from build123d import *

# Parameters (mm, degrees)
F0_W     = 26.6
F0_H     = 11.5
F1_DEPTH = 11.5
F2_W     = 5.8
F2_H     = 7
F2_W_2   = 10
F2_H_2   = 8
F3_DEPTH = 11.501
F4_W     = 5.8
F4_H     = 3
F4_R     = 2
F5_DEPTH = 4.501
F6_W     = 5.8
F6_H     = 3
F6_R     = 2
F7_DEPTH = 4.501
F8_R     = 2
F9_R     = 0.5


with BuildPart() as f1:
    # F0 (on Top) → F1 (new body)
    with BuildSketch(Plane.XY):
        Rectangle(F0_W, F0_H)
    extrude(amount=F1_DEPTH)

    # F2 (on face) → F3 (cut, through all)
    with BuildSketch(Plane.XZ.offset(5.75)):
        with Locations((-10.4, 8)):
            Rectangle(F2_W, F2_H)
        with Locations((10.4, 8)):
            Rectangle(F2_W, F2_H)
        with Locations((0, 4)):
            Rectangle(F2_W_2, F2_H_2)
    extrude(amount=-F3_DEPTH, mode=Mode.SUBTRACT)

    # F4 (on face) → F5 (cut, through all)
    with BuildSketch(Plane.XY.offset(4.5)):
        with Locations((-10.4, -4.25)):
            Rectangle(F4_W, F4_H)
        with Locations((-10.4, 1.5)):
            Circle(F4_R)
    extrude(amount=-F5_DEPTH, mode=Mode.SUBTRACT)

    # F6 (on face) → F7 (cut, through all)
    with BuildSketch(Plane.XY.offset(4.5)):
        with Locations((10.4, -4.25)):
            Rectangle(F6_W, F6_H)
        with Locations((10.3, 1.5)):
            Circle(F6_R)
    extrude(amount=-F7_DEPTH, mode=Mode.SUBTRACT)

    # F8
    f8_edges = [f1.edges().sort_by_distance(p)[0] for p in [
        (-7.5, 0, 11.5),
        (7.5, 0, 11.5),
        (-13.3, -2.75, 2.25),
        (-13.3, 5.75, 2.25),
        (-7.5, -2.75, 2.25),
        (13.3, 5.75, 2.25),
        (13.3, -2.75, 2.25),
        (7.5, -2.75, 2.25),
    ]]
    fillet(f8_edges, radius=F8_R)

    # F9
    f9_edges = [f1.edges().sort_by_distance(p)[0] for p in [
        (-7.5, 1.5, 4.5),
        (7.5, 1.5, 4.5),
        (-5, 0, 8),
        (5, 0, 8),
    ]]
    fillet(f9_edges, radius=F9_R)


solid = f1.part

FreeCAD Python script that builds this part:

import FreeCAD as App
import Part
import Sketcher
from FreeCAD import Vector
Q = App.Units.Quantity


def edges_at(feature, points):
    """Names of the edges that pass closest to the given points."""
    edges = feature.Shape.Edges
    near = lambda p: min(range(len(edges)), key=lambda i: edges[i].distToShape(Part.Vertex(*p))[0])
    return sorted({f"Edge{near(p) + 1}" for p in points})

doc = App.newDocument("Part")
body = doc.addObject("PartDesign::Body", "Body")

sketch1 = body.newObject("Sketcher::SketchObject", "Sketch")
sketch1.AttachmentSupport = (doc.getObject("XY_Plane"), [""])
sketch1.MapMode = "FlatFace"
sketch1.addGeometry([
    Part.LineSegment(Vector(-13, 6, 0), Vector(-13, -6, 0)),
    Part.LineSegment(Vector(-13, -6, 0), Vector(13, -6, 0)),
    Part.LineSegment(Vector(13, -6, 0), Vector(13, 6, 0)),
    Part.LineSegment(Vector(13, 6, 0), Vector(-13, 6, 0)),
], False)
sketch1.addConstraint([
    Sketcher.Constraint("Coincident", 0, 2, 1, 1),
    Sketcher.Constraint("Coincident", 1, 2, 2, 1),
    Sketcher.Constraint("Coincident", 2, 2, 3, 1),
    Sketcher.Constraint("Coincident", 3, 2, 0, 1),
    Sketcher.Constraint("Vertical", 0),
    Sketcher.Constraint("Horizontal", 1),
    Sketcher.Constraint("Vertical", 2),
    Sketcher.Constraint("Horizontal", 3),
    Sketcher.Constraint("Symmetric", 0, 2, 2, 2, -1, 1),
    Sketcher.Constraint("DistanceX", 1, 1, 1, 2, Q("26.6 mm")),
    Sketcher.Constraint("DistanceY", 0, 2, 0, 1, Q("11.5 mm")),
])
pad1 = body.newObject("PartDesign::Pad", "Pad")
pad1.Profile = sketch1
pad1.Length = 11.5

sketch2 = body.newObject("Sketcher::SketchObject", "Sketch001")
sketch2.AttachmentSupport = (doc.getObject("XZ_Plane"), [""])
sketch2.MapMode = "FlatFace"
sketch2.AttachmentOffset = App.Placement(Vector(0, 0, 5.75), App.Rotation())
sketch2.addGeometry([
    Part.LineSegment(Vector(-13, 12, 0), Vector(-13, 4, 0)),
    Part.LineSegment(Vector(-13, 4, 0), Vector(-8, 4, 0)),
    Part.LineSegment(Vector(-8, 4, 0), Vector(-8, 12, 0)),
    Part.LineSegment(Vector(-8, 12, 0), Vector(-13, 12, 0)),
    Part.LineSegment(Vector(8, 12, 0), Vector(8, 4, 0)),
    Part.LineSegment(Vector(8, 4, 0), Vector(13, 4, 0)),
    Part.LineSegment(Vector(13, 4, 0), Vector(13, 12, 0)),
    Part.LineSegment(Vector(13, 12, 0), Vector(8, 12, 0)),
    Part.LineSegment(Vector(-5, 8, 0), Vector(-5, 0, 0)),
    Part.LineSegment(Vector(-5, 0, 0), Vector(5, 0, 0)),
    Part.LineSegment(Vector(5, 0, 0), Vector(5, 8, 0)),
    Part.LineSegment(Vector(5, 8, 0), Vector(-5, 8, 0)),
], False)
sketch2.addConstraint([
    Sketcher.Constraint("Coincident", 0, 2, 1, 1),
    Sketcher.Constraint("Coincident", 1, 2, 2, 1),
    Sketcher.Constraint("Coincident", 2, 2, 3, 1),
    Sketcher.Constraint("Coincident", 3, 2, 0, 1),
    Sketcher.Constraint("Coincident", 4, 2, 5, 1),
    Sketcher.Constraint("Coincident", 5, 2, 6, 1),
    Sketcher.Constraint("Coincident", 6, 2, 7, 1),
    Sketcher.Constraint("Coincident", 7, 2, 4, 1),
    Sketcher.Constraint("Coincident", 8, 2, 9, 1),
    Sketcher.Constraint("Coincident", 9, 2, 10, 1),
    Sketcher.Constraint("Coincident", 10, 2, 11, 1),
    Sketcher.Constraint("Coincident", 11, 2, 8, 1),
    Sketcher.Constraint("Vertical", 0),
    Sketcher.Constraint("Horizontal", 1),
    Sketcher.Constraint("Vertical", 2),
    Sketcher.Constraint("Horizontal", 3),
    Sketcher.Constraint("Vertical", 4),
    Sketcher.Constraint("Horizontal", 5),
    Sketcher.Constraint("Vertical", 6),
    Sketcher.Constraint("Horizontal", 7),
    Sketcher.Constraint("Vertical", 8),
    Sketcher.Constraint("Horizontal", 9),
    Sketcher.Constraint("Vertical", 10),
    Sketcher.Constraint("Horizontal", 11),
    Sketcher.Constraint("Symmetric", 8, 2, 9, 2, -1, 1),
    Sketcher.Constraint("Symmetric", 1, 2, 4, 2, -2),
    Sketcher.Constraint("Symmetric", 3, 2, 6, 2, -2),
    Sketcher.Constraint("DistanceX", 9, 1, 9, 2, Q("10 mm")),
    Sketcher.Constraint("DistanceY", 0, 2, 0, 1, Q("7 mm")),
    Sketcher.Constraint("DistanceY", 8, 2, 8, 1, Q("8 mm")),
    Sketcher.Constraint("DistanceX", 1, 1, 1, 2, Q("5.8 mm")),
    Sketcher.Constraint("DistanceX", 1, 2, 4, 2, Q("15 mm")),
    Sketcher.Constraint("DistanceY", -1, 1, 0, 2, Q("4.5 mm")),
])
pocket1 = body.newObject("PartDesign::Pocket", "Pocket")
pocket1.Profile = sketch2
pocket1.Type = "ThroughAll"

sketch3 = body.newObject("Sketcher::SketchObject", "Sketch002")
sketch3.AttachmentSupport = (doc.getObject("XY_Plane"), [""])
sketch3.MapMode = "FlatFace"
sketch3.AttachmentOffset = App.Placement(Vector(0, 0, 4.5), App.Rotation())
sketch3.addGeometry([
    Part.LineSegment(Vector(-13.3, -2.8, 0), Vector(-13.3, -5.8, 0)),
    Part.LineSegment(Vector(-13.3, -5.8, 0), Vector(-7.5, -5.8, 0)),
    Part.LineSegment(Vector(-7.5, -5.8, 0), Vector(-7.5, -2.8, 0)),
    Part.LineSegment(Vector(-7.5, -2.8, 0), Vector(-13.3, -2.8, 0)),
    Part.Circle(Vector(-10.4, 1.5, 0), Vector(0, 0, 1), 2),
], False)
sketch3.addConstraint([
    Sketcher.Constraint("Coincident", 0, 2, 1, 1),
    Sketcher.Constraint("Coincident", 1, 2, 2, 1),
    Sketcher.Constraint("Coincident", 2, 2, 3, 1),
    Sketcher.Constraint("Coincident", 3, 2, 0, 1),
    Sketcher.Constraint("Vertical", 0),
    Sketcher.Constraint("Horizontal", 1),
    Sketcher.Constraint("Vertical", 2),
    Sketcher.Constraint("Horizontal", 3),
    Sketcher.Constraint("Diameter", 4, Q("4 mm")),
    Sketcher.Constraint("DistanceY", 0, 2, 0, 1, Q("3 mm")),
    Sketcher.Constraint("DistanceX", 1, 1, 1, 2, Q("5.8 mm")),
    Sketcher.Constraint("DistanceX", 4, 3, -1, 1, Q("10.4 mm")),
    Sketcher.Constraint("DistanceY", -1, 1, 4, 3, Q("1.5 mm")),
    Sketcher.Constraint("DistanceX", 0, 2, -1, 1, Q("13.3 mm")),
    Sketcher.Constraint("DistanceY", 0, 2, -1, 1, Q("5.75 mm")),
])
pocket2 = body.newObject("PartDesign::Pocket", "Pocket001")
pocket2.Profile = sketch3
pocket2.Type = "ThroughAll"

sketch4 = body.newObject("Sketcher::SketchObject", "Sketch003")
sketch4.AttachmentSupport = (doc.getObject("XY_Plane"), [""])
sketch4.MapMode = "FlatFace"
sketch4.AttachmentOffset = App.Placement(Vector(0, 0, 4.5), App.Rotation())
sketch4.addGeometry([
    Part.LineSegment(Vector(7.5, -2.8, 0), Vector(7.5, -5.8, 0)),
    Part.LineSegment(Vector(7.5, -5.8, 0), Vector(13.3, -5.8, 0)),
    Part.LineSegment(Vector(13.3, -5.8, 0), Vector(13.3, -2.8, 0)),
    Part.LineSegment(Vector(13.3, -2.8, 0), Vector(7.5, -2.8, 0)),
    Part.Circle(Vector(10.3, 1.5, 0), Vector(0, 0, 1), 2),
], False)
sketch4.addConstraint([
    Sketcher.Constraint("Coincident", 0, 2, 1, 1),
    Sketcher.Constraint("Coincident", 1, 2, 2, 1),
    Sketcher.Constraint("Coincident", 2, 2, 3, 1),
    Sketcher.Constraint("Coincident", 3, 2, 0, 1),
    Sketcher.Constraint("Vertical", 0),
    Sketcher.Constraint("Horizontal", 1),
    Sketcher.Constraint("Vertical", 2),
    Sketcher.Constraint("Horizontal", 3),
    Sketcher.Constraint("Diameter", 4, Q("4 mm")),
    Sketcher.Constraint("DistanceY", 0, 2, 0, 1, Q("3 mm")),
    Sketcher.Constraint("DistanceX", 1, 1, 1, 2, Q("5.8 mm")),
    Sketcher.Constraint("DistanceX", 4, 3, 1, 2, Q("3 mm")),
    Sketcher.Constraint("DistanceX", -1, 1, 4, 3, Q("10.3 mm")),
    Sketcher.Constraint("DistanceY", -1, 1, 4, 3, Q("1.5 mm")),
    Sketcher.Constraint("DistanceY", 0, 2, -1, 1, Q("5.75 mm")),
])
pocket3 = body.newObject("PartDesign::Pocket", "Pocket002")
pocket3.Profile = sketch4
pocket3.Type = "ThroughAll"
doc.recompute()

fillet = body.newObject("PartDesign::Fillet", "Fillet")
fillet.Base = (pocket3, edges_at(pocket3, [
    (-7.5, 0, 11.5),
    (7.5, 0, 11.5),
    (-13.3, -2.75, 2.25),
    (-13.3, 5.75, 2.25),
    (-7.5, -2.75, 2.25),
    (13.3, 5.75, 2.25),
    (13.3, -2.75, 2.25),
    (7.5, -2.75, 2.25),
]))
fillet.Radius = 2
doc.recompute()

fillet2 = body.newObject("PartDesign::Fillet", "Fillet001")
fillet2.Base = (fillet, edges_at(fillet, [
    (-7.5, 0.5, 4.5),
    (7.5, 0.5, 4.5),
    (-5, 0, 8),
    (5, 0, 8),
]))
fillet2.Radius = 0.5

doc.recompute()
